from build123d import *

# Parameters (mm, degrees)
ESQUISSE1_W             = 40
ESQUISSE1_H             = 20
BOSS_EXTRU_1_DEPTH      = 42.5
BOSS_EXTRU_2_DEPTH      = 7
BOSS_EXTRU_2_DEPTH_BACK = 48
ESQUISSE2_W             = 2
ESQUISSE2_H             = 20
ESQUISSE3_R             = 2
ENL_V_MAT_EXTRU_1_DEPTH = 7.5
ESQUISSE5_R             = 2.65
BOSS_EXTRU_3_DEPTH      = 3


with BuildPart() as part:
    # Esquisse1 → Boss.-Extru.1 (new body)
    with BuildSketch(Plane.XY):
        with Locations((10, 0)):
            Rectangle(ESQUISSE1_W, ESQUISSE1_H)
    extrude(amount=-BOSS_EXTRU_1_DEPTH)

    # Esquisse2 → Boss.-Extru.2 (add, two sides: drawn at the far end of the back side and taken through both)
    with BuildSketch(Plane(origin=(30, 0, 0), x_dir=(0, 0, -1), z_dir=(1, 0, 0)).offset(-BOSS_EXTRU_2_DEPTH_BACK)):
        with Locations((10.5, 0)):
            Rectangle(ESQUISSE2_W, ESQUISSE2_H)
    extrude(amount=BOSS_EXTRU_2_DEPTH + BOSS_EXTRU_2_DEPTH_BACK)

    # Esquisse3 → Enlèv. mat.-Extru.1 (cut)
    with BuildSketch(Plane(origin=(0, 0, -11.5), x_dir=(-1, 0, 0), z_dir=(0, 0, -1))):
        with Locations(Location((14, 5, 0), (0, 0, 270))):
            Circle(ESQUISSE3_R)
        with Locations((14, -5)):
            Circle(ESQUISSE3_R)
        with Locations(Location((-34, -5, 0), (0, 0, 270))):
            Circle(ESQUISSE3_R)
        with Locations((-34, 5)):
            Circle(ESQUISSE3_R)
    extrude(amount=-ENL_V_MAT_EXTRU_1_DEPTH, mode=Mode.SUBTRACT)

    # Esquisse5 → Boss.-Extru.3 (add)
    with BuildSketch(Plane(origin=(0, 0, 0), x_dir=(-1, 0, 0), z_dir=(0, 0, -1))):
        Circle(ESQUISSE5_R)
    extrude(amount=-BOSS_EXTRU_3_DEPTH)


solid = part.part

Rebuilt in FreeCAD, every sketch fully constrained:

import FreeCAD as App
import Part
import Sketcher
from FreeCAD import Vector

doc = App.newDocument("Part")
body = doc.addObject("PartDesign::Body", "Body")

# Sketch on XY plane
sketch1 = doc.addObject("Sketcher::SketchObject", "Sketch")
body.addObject(sketch1)
sketch1.AttachmentSupport = (doc.XY_Plane, [""])
sketch1.MapMode = "FlatFace"
sketch1.addGeometry([
    Part.LineSegment(Vector(-10, 10, 0), Vector(-10, -10, 0)),
    Part.LineSegment(Vector(-10, -10, 0), Vector(30, -10, 0)),
    Part.LineSegment(Vector(30, -10, 0), Vector(30, 10, 0)),
    Part.LineSegment(Vector(30, 10, 0), Vector(-10, 10, 0)),
], False)
sketch1.addConstraint([
    Sketcher.Constraint("Coincident", 0, 2, 1, 1),
    Sketcher.Constraint("Coincident", 1, 2, 2, 1),
    Sketcher.Constraint("Coincident", 2, 2, 3, 1),
    Sketcher.Constraint("Coincident", 3, 2, 0, 1),
    Sketcher.Constraint("Vertical", 0),
    Sketcher.Constraint("Horizontal", 1),
    Sketcher.Constraint("Vertical", 2),
    Sketcher.Constraint("Horizontal", 3),
    Sketcher.Constraint("DistanceX", 1, 1, 1, 2, 40.0),
    Sketcher.Constraint("DistanceY", 0, 2, 0, 1, 20.0),
    Sketcher.Constraint("DistanceX", 0, 2, -1, 1, 10.0),
    Sketcher.Constraint("DistanceY", 0, 2, -1, 1, 10.0),
])
pad1 = doc.addObject("PartDesign::Pad", "Pad")
body.addObject(pad1)
pad1.Profile = sketch1
pad1.Length = 42.5
pad1.Reversed = True

# Sketch on YZ plane
sketch2 = doc.addObject("Sketcher::SketchObject", "Sketch001")
body.addObject(sketch2)
sketch2.AttachmentSupport = (doc.YZ_Plane, [""])
sketch2.MapMode = "FlatFace"
sketch2.AttachmentOffset = App.Placement(Vector(0, 0, 30), App.Rotation())
sketch2.addGeometry([
    Part.LineSegment(Vector(10, -9.5, 0), Vector(-10, -9.5, 0)),
    Part.LineSegment(Vector(-10, -9.5, 0), Vector(-10, -11.5, 0)),
    Part.LineSegment(Vector(-10, -11.5, 0), Vector(10, -11.5, 0)),
    Part.LineSegment(Vector(10, -11.5, 0), Vector(10, -9.5, 0)),
], False)
sketch2.addConstraint([
    Sketcher.Constraint("Coincident", 0, 2, 1, 1),
    Sketcher.Constraint("Coincident", 1, 2, 2, 1),
    Sketcher.Constraint("Coincident", 2, 2, 3, 1),
    Sketcher.Constraint("Coincident", 3, 2, 0, 1),
    Sketcher.Constraint("Horizontal", 0),
    Sketcher.Constraint("Vertical", 1),
    Sketcher.Constraint("Horizontal", 2),
    Sketcher.Constraint("Vertical", 3),
    Sketcher.Constraint("DistanceX", 0, 2, 0, 1, 20.0),
    Sketcher.Constraint("DistanceY", 1, 2, 1, 1, 2.0),
    Sketcher.Constraint("DistanceX", 0, 2, -1, 1, 10.0),
    Sketcher.Constraint("DistanceY", 0, 2, -1, 1, 9.5),
])
pad2 = doc.addObject("PartDesign::Pad", "Pad001")
body.addObject(pad2)
pad2.Profile = sketch2
pad2.Type = "TwoLengths"
pad2.Length = 7
pad2.Length2 = 48

# Sketch on XY plane
sketch3 = doc.addObject("Sketcher::SketchObject", "Sketch002")
body.addObject(sketch3)
sketch3.AttachmentSupport = (doc.XY_Plane, [""])
sketch3.MapMode = "FlatFace"
sketch3.AttachmentOffset = App.Placement(Vector(0, 0, -11.5), App.Rotation())
sketch3.addGeometry([
    Part.Circle(Vector(-14, 5, 0), Vector(0, 0, 1), 2),
    Part.Circle(Vector(-14, -5, 0), Vector(0, 0, 1), 2),
    Part.Circle(Vector(34, -5, 0), Vector(0, 0, 1), 2),
    Part.Circle(Vector(34, 5, 0), Vector(0, 0, 1), 2),
], False)
sketch3.addConstraint([
    Sketcher.Constraint("Equal", 0, 1),
    Sketcher.Constraint("Equal", 1, 2),
    Sketcher.Constraint("Equal", 2, 3),
    Sketcher.Constraint("Symmetric", 0, 3, 1, 3, -1),
    Sketcher.Constraint("Symmetric", 2, 3, 3, 3, -1),
    Sketcher.Constraint("Horizontal", 1, 3, 2, 3),
    Sketcher.Constraint("Diameter", 0, 4.0),
    Sketcher.Constraint("DistanceX", 0, 3, -1, 1, 14.0),
    Sketcher.Constraint("DistanceY", -1, 1, 0, 3, 5.0),
    Sketcher.Constraint("DistanceX", -1, 1, 2, 3, 34.0),
])
pocket1 = doc.addObject("PartDesign::Pocket", "Pocket")
body.addObject(pocket1)
pocket1.Profile = sketch3
pocket1.Length = 7.5
pocket1.Reversed = True

# Sketch on XY plane
sketch4 = doc.addObject("Sketcher::SketchObject", "Sketch003")
body.addObject(sketch4)
sketch4.AttachmentSupport = (doc.XY_Plane, [""])
sketch4.MapMode = "FlatFace"
sketch4.addGeometry(Part.Circle(Vector(0, 0, 0), Vector(0, 0, 1), 2.65), False)
sketch4.addConstraint([
    Sketcher.Constraint("Coincident", 0, 3, -1, 1),
    Sketcher.Constraint("Diameter", 0, 5.3),
])
pad3 = doc.addObject("PartDesign::Pad", "Pad002")
body.addObject(pad3)
pad3.Profile = sketch4
pad3.Length = 3

doc.recompute()
